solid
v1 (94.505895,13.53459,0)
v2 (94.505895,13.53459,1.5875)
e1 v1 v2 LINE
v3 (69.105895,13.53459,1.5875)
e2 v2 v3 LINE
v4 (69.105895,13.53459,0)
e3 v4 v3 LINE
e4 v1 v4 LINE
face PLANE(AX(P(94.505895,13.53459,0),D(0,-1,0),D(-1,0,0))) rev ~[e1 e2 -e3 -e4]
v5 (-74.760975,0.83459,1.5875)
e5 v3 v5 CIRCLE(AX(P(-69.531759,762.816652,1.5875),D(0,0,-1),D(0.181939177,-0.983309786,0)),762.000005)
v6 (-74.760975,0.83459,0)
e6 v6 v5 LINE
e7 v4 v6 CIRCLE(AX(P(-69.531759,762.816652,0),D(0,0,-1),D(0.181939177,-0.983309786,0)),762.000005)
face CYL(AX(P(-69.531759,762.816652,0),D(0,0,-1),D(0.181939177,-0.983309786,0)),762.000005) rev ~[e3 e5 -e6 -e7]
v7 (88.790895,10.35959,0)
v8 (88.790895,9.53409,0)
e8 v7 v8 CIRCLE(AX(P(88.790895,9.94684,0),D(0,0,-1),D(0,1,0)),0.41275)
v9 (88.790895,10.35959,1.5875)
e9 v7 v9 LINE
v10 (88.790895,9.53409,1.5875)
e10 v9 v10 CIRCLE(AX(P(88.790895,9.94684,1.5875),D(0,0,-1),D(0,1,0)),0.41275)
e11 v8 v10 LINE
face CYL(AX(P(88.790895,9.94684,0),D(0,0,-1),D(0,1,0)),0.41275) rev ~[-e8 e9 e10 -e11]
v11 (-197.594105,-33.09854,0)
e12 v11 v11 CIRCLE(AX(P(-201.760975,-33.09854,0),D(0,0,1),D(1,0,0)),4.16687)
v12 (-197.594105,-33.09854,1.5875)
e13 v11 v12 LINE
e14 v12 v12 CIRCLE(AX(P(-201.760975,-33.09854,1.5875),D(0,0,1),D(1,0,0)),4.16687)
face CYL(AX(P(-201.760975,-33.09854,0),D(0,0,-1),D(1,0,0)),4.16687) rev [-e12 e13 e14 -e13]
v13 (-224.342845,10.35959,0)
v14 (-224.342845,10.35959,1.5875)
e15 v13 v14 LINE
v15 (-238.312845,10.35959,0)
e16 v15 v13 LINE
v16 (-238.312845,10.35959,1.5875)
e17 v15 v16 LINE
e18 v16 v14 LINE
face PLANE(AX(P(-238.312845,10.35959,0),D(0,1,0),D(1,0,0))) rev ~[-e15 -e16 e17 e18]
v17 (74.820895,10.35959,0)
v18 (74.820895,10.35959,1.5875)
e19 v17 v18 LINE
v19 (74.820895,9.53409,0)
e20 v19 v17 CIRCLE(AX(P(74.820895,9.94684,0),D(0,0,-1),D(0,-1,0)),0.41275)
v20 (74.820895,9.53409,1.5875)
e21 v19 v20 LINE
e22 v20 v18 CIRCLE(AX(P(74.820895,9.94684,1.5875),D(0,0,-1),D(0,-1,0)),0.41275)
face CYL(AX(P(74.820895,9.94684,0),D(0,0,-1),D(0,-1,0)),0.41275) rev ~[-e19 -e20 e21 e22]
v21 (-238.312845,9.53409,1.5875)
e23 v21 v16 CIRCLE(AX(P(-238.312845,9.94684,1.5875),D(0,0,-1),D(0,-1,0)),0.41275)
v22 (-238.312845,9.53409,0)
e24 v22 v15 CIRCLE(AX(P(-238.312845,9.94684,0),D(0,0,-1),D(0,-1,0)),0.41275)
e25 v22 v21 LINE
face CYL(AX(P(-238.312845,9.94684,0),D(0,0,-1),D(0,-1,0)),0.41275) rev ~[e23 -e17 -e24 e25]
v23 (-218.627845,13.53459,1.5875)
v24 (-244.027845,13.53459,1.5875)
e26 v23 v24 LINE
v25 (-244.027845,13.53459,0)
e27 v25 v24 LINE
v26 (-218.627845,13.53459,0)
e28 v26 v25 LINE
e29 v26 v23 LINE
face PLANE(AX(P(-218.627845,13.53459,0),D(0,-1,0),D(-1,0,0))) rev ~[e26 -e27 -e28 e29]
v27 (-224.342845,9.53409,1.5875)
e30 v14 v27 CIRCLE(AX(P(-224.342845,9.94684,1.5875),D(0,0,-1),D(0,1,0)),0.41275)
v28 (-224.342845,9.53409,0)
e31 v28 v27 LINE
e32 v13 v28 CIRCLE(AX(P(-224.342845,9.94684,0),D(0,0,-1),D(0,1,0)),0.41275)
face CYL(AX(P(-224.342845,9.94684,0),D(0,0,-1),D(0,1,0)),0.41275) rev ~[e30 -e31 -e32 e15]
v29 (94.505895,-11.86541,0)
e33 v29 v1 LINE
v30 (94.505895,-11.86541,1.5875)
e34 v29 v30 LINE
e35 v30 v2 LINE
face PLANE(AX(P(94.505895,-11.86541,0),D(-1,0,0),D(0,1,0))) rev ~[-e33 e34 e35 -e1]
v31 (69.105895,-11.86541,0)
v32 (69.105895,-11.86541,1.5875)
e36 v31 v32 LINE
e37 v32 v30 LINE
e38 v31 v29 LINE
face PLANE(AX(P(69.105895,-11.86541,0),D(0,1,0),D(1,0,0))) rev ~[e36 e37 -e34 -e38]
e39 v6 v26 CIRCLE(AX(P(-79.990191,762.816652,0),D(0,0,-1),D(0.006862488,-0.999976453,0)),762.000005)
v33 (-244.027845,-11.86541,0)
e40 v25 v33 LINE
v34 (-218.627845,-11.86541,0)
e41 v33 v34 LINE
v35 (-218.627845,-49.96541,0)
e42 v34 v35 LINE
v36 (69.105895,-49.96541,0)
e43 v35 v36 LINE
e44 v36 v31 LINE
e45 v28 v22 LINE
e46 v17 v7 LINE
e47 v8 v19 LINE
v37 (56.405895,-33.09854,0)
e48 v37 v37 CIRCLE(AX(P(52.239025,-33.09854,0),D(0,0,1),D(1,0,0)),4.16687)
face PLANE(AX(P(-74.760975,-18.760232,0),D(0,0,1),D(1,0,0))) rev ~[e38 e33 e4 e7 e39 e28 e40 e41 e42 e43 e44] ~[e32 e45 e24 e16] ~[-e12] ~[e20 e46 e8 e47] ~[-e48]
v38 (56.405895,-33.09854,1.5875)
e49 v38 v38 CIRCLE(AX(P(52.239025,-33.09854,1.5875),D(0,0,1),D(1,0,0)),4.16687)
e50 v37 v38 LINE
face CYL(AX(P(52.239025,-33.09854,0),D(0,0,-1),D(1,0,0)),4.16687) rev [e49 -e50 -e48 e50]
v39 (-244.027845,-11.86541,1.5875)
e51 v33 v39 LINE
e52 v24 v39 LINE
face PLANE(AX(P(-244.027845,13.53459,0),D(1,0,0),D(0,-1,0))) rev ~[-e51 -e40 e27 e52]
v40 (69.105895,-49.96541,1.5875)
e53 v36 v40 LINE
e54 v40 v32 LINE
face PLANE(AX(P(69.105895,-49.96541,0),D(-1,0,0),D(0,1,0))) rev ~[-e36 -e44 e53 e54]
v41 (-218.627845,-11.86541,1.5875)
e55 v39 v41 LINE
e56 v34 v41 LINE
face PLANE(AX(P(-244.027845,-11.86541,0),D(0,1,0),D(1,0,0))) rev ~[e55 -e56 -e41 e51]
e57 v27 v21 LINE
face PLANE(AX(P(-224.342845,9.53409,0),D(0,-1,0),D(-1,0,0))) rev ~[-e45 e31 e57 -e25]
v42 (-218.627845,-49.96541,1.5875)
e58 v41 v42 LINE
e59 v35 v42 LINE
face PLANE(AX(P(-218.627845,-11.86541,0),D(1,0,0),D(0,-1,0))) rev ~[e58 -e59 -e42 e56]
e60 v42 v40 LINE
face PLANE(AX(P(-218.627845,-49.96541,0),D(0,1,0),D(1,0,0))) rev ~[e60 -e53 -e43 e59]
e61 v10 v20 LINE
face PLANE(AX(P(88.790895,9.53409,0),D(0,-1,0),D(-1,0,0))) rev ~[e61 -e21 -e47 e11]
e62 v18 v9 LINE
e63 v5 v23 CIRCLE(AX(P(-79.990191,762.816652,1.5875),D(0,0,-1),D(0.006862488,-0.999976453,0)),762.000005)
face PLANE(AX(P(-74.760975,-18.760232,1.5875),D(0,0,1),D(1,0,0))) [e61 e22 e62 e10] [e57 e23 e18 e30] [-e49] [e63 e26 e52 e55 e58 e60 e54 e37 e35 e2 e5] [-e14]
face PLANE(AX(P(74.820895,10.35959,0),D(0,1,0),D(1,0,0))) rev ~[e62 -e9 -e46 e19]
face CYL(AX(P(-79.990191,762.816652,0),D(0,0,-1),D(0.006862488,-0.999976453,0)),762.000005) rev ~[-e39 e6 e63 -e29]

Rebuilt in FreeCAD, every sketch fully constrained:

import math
import FreeCAD as App
import Part
import Sketcher
from FreeCAD import Vector
Q = App.Units.Quantity

doc = App.newDocument("Part")
body = doc.addObject("PartDesign::Body", "Body")

# Sketch on XY plane
sketch1 = body.newObject("Sketcher::SketchObject", "Sketch")
sketch1.AttachmentSupport = (doc.getObject("XY_Plane"), [""])
sketch1.MapMode = "FlatFace"
sketch1.addGeometry(Part.LineSegment(Vector(-218.63, 13.53, 0), Vector(-244.03, 13.53, 0)), False)
sketch1.addGeometry(Part.LineSegment(Vector(-244.03, 13.53, 0), Vector(-244.03, -11.87, 0)), False)
sketch1.addGeometry(Part.LineSegment(Vector(-244.03, -11.87, 0), Vector(-218.63, -11.87, 0)), False)
sketch1.addGeometry(Part.LineSegment(Vector(-218.63, -11.87, 0), Vector(-218.63, -49.97, 0)), False)
sketch1.addGeometry(Part.LineSegment(Vector(-218.63, -49.97, 0), Vector(69.11, -49.97, 0)), False)
sketch1.addGeometry(Part.LineSegment(Vector(69.11, -49.97, 0), Vector(69.11, -11.87, 0)), False)
sketch1.addGeometry(Part.LineSegment(Vector(69.11, -11.87, 0), Vector(94.51, -11.87, 0)), False)
sketch1.addGeometry(Part.LineSegment(Vector(94.51, -11.87, 0), Vector(94.51, 13.53, 0)), False)
sketch1.addGeometry(Part.LineSegment(Vector(94.51, 13.53, 0), Vector(69.11, 13.53, 0)), False)
sketch1.addGeometry(Part.ArcOfCircle(Part.Circle(Vector(-69.53, 762.82, 0), Vector(0, 0, 1), 762), math.radians(-90.39), math.radians(-79.52)), False)
sketch1.addGeometry(Part.ArcOfCircle(Part.Circle(Vector(-79.99, 762.82, 0), Vector(0, 0, 1), 762), math.radians(-100.48), math.radians(-89.61)), False)
sketch1.addGeometry(Part.Circle(Vector(-201.76, -33.1, 0), Vector(0, 0, 1), 4.17), False)
sketch1.addGeometry(Part.Circle(Vector(52.24, -33.1, 0), Vector(0, 0, 1), 4.17), False)
sketch1.addGeometry(Part.LineSegment(Vector(-224.34, 9.53, 0), Vector(-238.31, 9.53, 0)), False)
sketch1.addGeometry(Part.ArcOfCircle(Part.Circle(Vector(-238.31, 9.95, 0), Vector(0, 0, 1), 0.41), math.radians(90), math.radians(270)), False)
sketch1.addGeometry(Part.LineSegment(Vector(-238.31, 10.36, 0), Vector(-224.34, 10.36, 0)), False)
sketch1.addGeometry(Part.ArcOfCircle(Part.Circle(Vector(-224.34, 9.95, 0), Vector(0, 0, 1), 0.41), math.radians(-90), math.radians(90)), False)
sketch1.addGeometry(Part.LineSegment(Vector(88.79, 9.53, 0), Vector(74.82, 9.53, 0)), False)
sketch1.addGeometry(Part.ArcOfCircle(Part.Circle(Vector(74.82, 9.95, 0), Vector(0, 0, 1), 0.41), math.radians(90), math.radians(270)), False)
sketch1.addGeometry(Part.LineSegment(Vector(74.82, 10.36, 0), Vector(88.79, 10.36, 0)), False)
sketch1.addGeometry(Part.ArcOfCircle(Part.Circle(Vector(88.79, 9.95, 0), Vector(0, 0, 1), 0.41), math.radians(-90), math.radians(90)), False)
sketch1.addConstraint(Sketcher.Constraint("Coincident", 0, 2, 1, 1))
sketch1.addConstraint(Sketcher.Constraint("Coincident", 1, 2, 2, 1))
sketch1.addConstraint(Sketcher.Constraint("Coincident", 2, 2, 3, 1))
sketch1.addConstraint(Sketcher.Constraint("Coincident", 3, 2, 4, 1))
sketch1.addConstraint(Sketcher.Constraint("Coincident", 4, 2, 5, 1))
sketch1.addConstraint(Sketcher.Constraint("Coincident", 5, 2, 6, 1))
sketch1.addConstraint(Sketcher.Constraint("Coincident", 6, 2, 7, 1))
sketch1.addConstraint(Sketcher.Constraint("Coincident", 7, 2, 8, 1))
sketch1.addConstraint(Sketcher.Constraint("Coincident", 8, 2, 9, 2))
sketch1.addConstraint(Sketcher.Constraint("Coincident", 9, 1, 10, 2))
sketch1.addConstraint(Sketcher.Constraint("Coincident", 10, 1, 0, 1))
sketch1.addConstraint(Sketcher.Constraint("Tangent", 13, 2, 14, 2))
sketch1.addConstraint(Sketcher.Constraint("Tangent", 14, 1, 15, 1))
sketch1.addConstraint(Sketcher.Constraint("Tangent", 15, 2, 16, 2))
sketch1.addConstraint(Sketcher.Constraint("Tangent", 16, 1, 13, 1))
sketch1.addConstraint(Sketcher.Constraint("Tangent", 17, 2, 18, 2))
sketch1.addConstraint(Sketcher.Constraint("Tangent", 18, 1, 19, 1))
sketch1.addConstraint(Sketcher.Constraint("Tangent", 19, 2, 20, 2))
sketch1.addConstraint(Sketcher.Constraint("Tangent", 20, 1, 17, 1))
sketch1.addConstraint(Sketcher.Constraint("Horizontal", 0))
sketch1.addConstraint(Sketcher.Constraint("Vertical", 1))
sketch1.addConstraint(Sketcher.Constraint("Horizontal", 2))
sketch1.addConstraint(Sketcher.Constraint("Vertical", 3))
sketch1.addConstraint(Sketcher.Constraint("Horizontal", 4))
sketch1.addConstraint(Sketcher.Constraint("Vertical", 5))
sketch1.addConstraint(Sketcher.Constraint("Horizontal", 6))
sketch1.addConstraint(Sketcher.Constraint("Vertical", 7))
sketch1.addConstraint(Sketcher.Constraint("Horizontal", 8))
sketch1.addConstraint(Sketcher.Constraint("Horizontal", 13))
sketch1.addConstraint(Sketcher.Constraint("Horizontal", 15))
sketch1.addConstraint(Sketcher.Constraint("Horizontal", 17))
sketch1.addConstraint(Sketcher.Constraint("Horizontal", 19))
sketch1.addConstraint(Sketcher.Constraint("Equal", 9, 10))
sketch1.addConstraint(Sketcher.Constraint("Equal", 11, 12))
sketch1.addConstraint(Sketcher.Constraint("Equal", 16, 18))
sketch1.addConstraint(Sketcher.Constraint("Horizontal", 9, 3, 10, 3))
sketch1.addConstraint(Sketcher.Constraint("Horizontal", 11, 3, 12, 3))
sketch1.addConstraint(Sketcher.Constraint("Horizontal", 16, 3, 18, 3))
sketch1.addConstraint(Sketcher.Constraint("Horizontal", 2, 2, 5, 2))
sketch1.addConstraint(Sketcher.Constraint("Horizontal", 0, 2, 7, 2))
sketch1.addConstraint(Sketcher.Constraint("Vertical", 5, 2, 8, 2))
sketch1.addConstraint(Sketcher.Constraint("Equal", 0, 2))
sketch1.addConstraint(Sketcher.Constraint("Equal", 2, 6))
sketch1.addConstraint(Sketcher.Constraint("Equal", 15, 17))
sketch1.addConstraint(Sketcher.Constraint("Equal", 8, 1))
sketch1.addConstraint(Sketcher.Constraint("DistanceX", 0, 2, 0, 1, Q("1 in")))
sketch1.addConstraint(Sketcher.Constraint("DistanceY", 3, 2, 3, 1, Q("1.5 in")))
sketch1.addConstraint(Sketcher.Constraint("DistanceX", 11, 3, 12, 3, Q("10 in")))
sketch1.addConstraint(Sketcher.Constraint("Diameter", 11, Q("0.3281 in")))
sketch1.addConstraint(Sketcher.Constraint("DistanceX", 13, 2, 13, 1, Q("0.55 in")))
sketch1.addConstraint(Sketcher.Constraint("DistanceY", 9, 1, 8, 2, Q("0.5 in")))
sketch1.addConstraint(Sketcher.Constraint("DistanceX", 4, 1, 4, 2, Q("11.3281 in")))
sketch1.addConstraint(Sketcher.Constraint("Radius", 14, Q("0.41275 mm")))
sketch1.addConstraint(Sketcher.Constraint("DistanceX", 0, 2, 14, 3, Q("0.225 in")))
sketch1.addConstraint(Sketcher.Constraint("DistanceX", 4, 2, 18, 3, Q("0.225 in")))
sketch1.addConstraint(Sketcher.Constraint("DistanceY", 14, 1, 0, 2, Q("0.125 in")))
sketch1.addConstraint(Sketcher.Constraint("Radius", 9, Q("762.000005 mm")))
sketch1.addConstraint(Sketcher.Constraint("DistanceY", 11, 3, 14, 3, Q("1.6947 in")))
sketch1.addConstraint(Sketcher.Constraint("DistanceX", 9, 3, -1, 1, Q("69.531759 mm")))
sketch1.addConstraint(Sketcher.Constraint("DistanceY", 11, 3, -1, 1, Q("33.09854 mm")))
sketch1.addConstraint(Sketcher.Constraint("DistanceX", 14, 3, 11, 3, Q("36.55187 mm")))
pad1 = body.newObject("PartDesign::Pad", "Pad")
pad1.Profile = sketch1
pad1.Length = Q("0.0625 in")

doc.recompute()
